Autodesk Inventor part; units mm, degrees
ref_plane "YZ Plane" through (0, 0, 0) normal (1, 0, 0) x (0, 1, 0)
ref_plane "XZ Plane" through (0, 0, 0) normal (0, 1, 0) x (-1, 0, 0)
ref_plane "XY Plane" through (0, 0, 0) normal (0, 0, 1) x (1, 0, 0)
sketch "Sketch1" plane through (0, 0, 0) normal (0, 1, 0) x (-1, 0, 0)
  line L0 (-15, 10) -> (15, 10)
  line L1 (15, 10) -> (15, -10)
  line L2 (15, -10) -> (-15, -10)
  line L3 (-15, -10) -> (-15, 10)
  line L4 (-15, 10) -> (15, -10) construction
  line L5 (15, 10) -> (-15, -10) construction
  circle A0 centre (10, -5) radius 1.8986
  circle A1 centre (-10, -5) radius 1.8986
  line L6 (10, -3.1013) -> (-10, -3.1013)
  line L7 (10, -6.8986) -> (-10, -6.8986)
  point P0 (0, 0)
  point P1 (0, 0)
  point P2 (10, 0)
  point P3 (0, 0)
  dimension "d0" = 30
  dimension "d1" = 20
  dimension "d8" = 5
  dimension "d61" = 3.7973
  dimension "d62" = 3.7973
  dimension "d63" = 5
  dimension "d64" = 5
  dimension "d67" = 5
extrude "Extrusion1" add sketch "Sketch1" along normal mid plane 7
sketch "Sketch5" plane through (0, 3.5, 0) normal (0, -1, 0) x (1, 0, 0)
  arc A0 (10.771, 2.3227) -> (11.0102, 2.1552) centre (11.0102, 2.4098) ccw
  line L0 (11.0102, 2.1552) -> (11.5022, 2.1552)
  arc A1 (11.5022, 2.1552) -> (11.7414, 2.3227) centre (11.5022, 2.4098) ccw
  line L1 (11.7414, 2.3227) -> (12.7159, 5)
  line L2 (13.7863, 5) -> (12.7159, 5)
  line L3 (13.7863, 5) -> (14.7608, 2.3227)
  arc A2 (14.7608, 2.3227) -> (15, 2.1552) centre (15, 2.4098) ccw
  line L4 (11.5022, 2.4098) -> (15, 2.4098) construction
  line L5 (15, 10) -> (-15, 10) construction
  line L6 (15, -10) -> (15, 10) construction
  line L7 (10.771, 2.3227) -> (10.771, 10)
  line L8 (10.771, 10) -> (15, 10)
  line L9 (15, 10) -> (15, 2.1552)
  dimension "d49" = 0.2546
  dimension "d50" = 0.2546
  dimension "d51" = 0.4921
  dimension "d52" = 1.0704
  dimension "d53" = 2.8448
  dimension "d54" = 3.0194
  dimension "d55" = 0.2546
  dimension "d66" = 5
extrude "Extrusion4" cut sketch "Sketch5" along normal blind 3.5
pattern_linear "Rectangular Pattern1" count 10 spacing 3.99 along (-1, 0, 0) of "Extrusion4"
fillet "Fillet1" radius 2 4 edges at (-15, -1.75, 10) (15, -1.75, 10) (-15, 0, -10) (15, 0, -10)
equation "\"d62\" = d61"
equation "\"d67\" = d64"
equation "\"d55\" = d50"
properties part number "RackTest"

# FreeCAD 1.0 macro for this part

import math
import FreeCAD as App
import Part
import Sketcher
from FreeCAD import Vector
Q = App.Units.Quantity


def edges_at(feature, points):
    """Names of the edges that pass closest to the given points."""
    edges = feature.Shape.Edges
    near = lambda p: min(range(len(edges)), key=lambda i: edges[i].distToShape(Part.Vertex(*p))[0])
    return sorted({f"Edge{near(p) + 1}" for p in points})


def add_polygon(sketch, points):
    """Adds a closed chain of lines whose ends are joined by coincident constraints."""
    first, n = sketch.GeometryCount, len(points)
    for a, b in zip(points, points[1:] + points[:1]):
        sketch.addGeometry(Part.LineSegment(App.Vector(*a, 0), App.Vector(*b, 0)), False)
    for i in range(n):
        sketch.addConstraint(Sketcher.Constraint("Coincident", first + i, 2, first + (i + 1) % n, 1))

doc = App.newDocument("Part")
body = doc.addObject("PartDesign::Body", "Body")

sketch1 = body.newObject("Sketcher::SketchObject", "Sketch")
sketch1.AttachmentSupport = (doc.getObject("XZ_Plane"), [""])
sketch1.MapMode = "FlatFace"
add_polygon(sketch1, [(-15, 10), (15, 10), (15, -10), (-15, -10)])
sketch1.addGeometry(Part.ArcOfCircle(Part.Circle(Vector(-10, -5, 0), Vector(0, 0, 1), 1.8986), math.radians(90), math.radians(270)), False)
sketch1.addGeometry(Part.LineSegment(Vector(-10, -6.8986, 0), Vector(10, -6.8986, 0)), False)
sketch1.addGeometry(Part.ArcOfCircle(Part.Circle(Vector(10, -5, 0), Vector(0, 0, 1), 1.8986), math.radians(-90), math.radians(90)), False)
sketch1.addGeometry(Part.LineSegment(Vector(10, -3.1013, 0), Vector(-10, -3.1013, 0)), False)
sketch1.addConstraint(Sketcher.Constraint("Tangent", 4, 2, 5, 1))
sketch1.addConstraint(Sketcher.Constraint("Tangent", 5, 2, 6, 1))
sketch1.addConstraint(Sketcher.Constraint("Tangent", 6, 2, 7, 1))
sketch1.addConstraint(Sketcher.Constraint("Tangent", 7, 2, 4, 1))
sketch1.addConstraint(Sketcher.Constraint("Horizontal", 0))
sketch1.addConstraint(Sketcher.Constraint("Vertical", 1))
sketch1.addConstraint(Sketcher.Constraint("Horizontal", 2))
sketch1.addConstraint(Sketcher.Constraint("Vertical", 3))
sketch1.addConstraint(Sketcher.Constraint("Horizontal", 5))
sketch1.addConstraint(Sketcher.Constraint("Horizontal", 7))
sketch1.addConstraint(Sketcher.Constraint("Symmetric", 0, 2, 2, 2, -1, 1))
sketch1.addConstraint(Sketcher.Constraint("Equal", 7, 1))
sketch1.addConstraint(Sketcher.Constraint("DistanceX", 0, 1, 0, 2, Q("30 mm")))
sketch1.addConstraint(Sketcher.Constraint("DistanceX", 5, 1, 5, 2, Q("20 mm")))
sketch1.addConstraint(Sketcher.Constraint("DistanceY", 4, 3, -1, 1, Q("5 mm")))
sketch1.addConstraint(Sketcher.Constraint("DistanceX", 6, 3, 0, 2, Q("5 mm")))
sketch1.addConstraint(Sketcher.Constraint("Radius", 4, Q("1.8986 mm")))
pad1 = body.newObject("PartDesign::Pad", "Pad")
pad1.Profile = sketch1
pad1.Length = 7
pad1.Midplane = True

sketch2 = body.newObject("Sketcher::SketchObject", "Sketch001")
sketch2.AttachmentSupport = (doc.getObject("XZ_Plane"), [""])
sketch2.MapMode = "FlatFace"
sketch2.AttachmentOffset = App.Placement(Vector(0, 0, -3.5), App.Rotation())
sketch2.addGeometry(Part.LineSegment(Vector(10.771, 10, 0), Vector(10.771, 2.3227, 0)), False)
sketch2.addGeometry(Part.ArcOfCircle(Part.Circle(Vector(11.0102, 2.4098, 0), Vector(0, 0, 1), 0.254564), math.radians(-159.991895), math.radians(-90)), False)
sketch2.addGeometry(Part.LineSegment(Vector(11.0102, 2.1552, 0), Vector(11.5022, 2.1552, 0)), False)
sketch2.addGeometry(Part.ArcOfCircle(Part.Circle(Vector(11.5022, 2.4098, 0), Vector(0, 0, 1), 0.2546), math.radians(-90), math.radians(-20.008105)), False)
sketch2.addGeometry(Part.LineSegment(Vector(11.7414, 2.3227, 0), Vector(12.7159, 5, 0)), False)
sketch2.addGeometry(Part.LineSegment(Vector(12.7159, 5, 0), Vector(13.7863, 5, 0)), False)
sketch2.addGeometry(Part.LineSegment(Vector(13.7863, 5, 0), Vector(14.7608, 2.3227, 0)), False)
sketch2.addGeometry(Part.ArcOfCircle(Part.Circle(Vector(15, 2.4098, 0), Vector(0, 0, 1), 0.254564), math.radians(-159.991895), math.radians(-90)), False)
sketch2.addGeometry(Part.LineSegment(Vector(15, 2.1552, 0), Vector(15, 10, 0)), False)
sketch2.addGeometry(Part.LineSegment(Vector(15, 10, 0), Vector(10.771, 10, 0)), False)
sketch2.addConstraint(Sketcher.Constraint("Coincident", 0, 2, 1, 1))
sketch2.addConstraint(Sketcher.Constraint("Tangent", 1, 2, 2, 1))
sketch2.addConstraint(Sketcher.Constraint("Tangent", 2, 2, 3, 1))
sketch2.addConstraint(Sketcher.Constraint("Tangent", 3, 2, 4, 1))
sketch2.addConstraint(Sketcher.Constraint("Coincident", 4, 2, 5, 1))
sketch2.addConstraint(Sketcher.Constraint("Coincident", 5, 2, 6, 1))
sketch2.addConstraint(Sketcher.Constraint("Tangent", 6, 2, 7, 1))
sketch2.addConstraint(Sketcher.Constraint("Coincident", 7, 2, 8, 1))
sketch2.addConstraint(Sketcher.Constraint("Coincident", 8, 2, 9, 1))
sketch2.addConstraint(Sketcher.Constraint("Coincident", 9, 2, 0, 1))
sketch2.addConstraint(Sketcher.Constraint("Vertical", 0))
sketch2.addConstraint(Sketcher.Constraint("Horizontal", 2))
sketch2.addConstraint(Sketcher.Constraint("Horizontal", 5))
sketch2.addConstraint(Sketcher.Constraint("Vertical", 8))
sketch2.addConstraint(Sketcher.Constraint("Horizontal", 9))
sketch2.addConstraint(Sketcher.Constraint("Equal", 1, 3))
sketch2.addConstraint(Sketcher.Constraint("Equal", 3, 7))
sketch2.addConstraint(Sketcher.Constraint("Horizontal", 3, 3, 7, 3))
sketch2.addConstraint(Sketcher.Constraint("Horizontal", 0, 2, 3, 2))
sketch2.addConstraint(Sketcher.Constraint("Horizontal", 3, 2, 6, 2))
sketch2.addConstraint(Sketcher.Constraint("DistanceY", -1, 1, 4, 2, Q("5 mm")))
sketch2.addConstraint(Sketcher.Constraint("DistanceY", 5, 2, 8, 2, Q("5 mm")))
sketch2.addConstraint(Sketcher.Constraint("Radius", 1, Q("0.2546 mm")))
sketch2.addConstraint(Sketcher.Constraint("DistanceX", 2, 1, 2, 2, Q("0.492 mm")))
sketch2.addConstraint(Sketcher.Constraint("Angle", 4, Q("69.9992 deg")))
sketch2.addConstraint(Sketcher.Constraint("DistanceX", 5, 1, 5, 2, Q("1.0704 mm")))
sketch2.addConstraint(Sketcher.Constraint("DistanceX", -1, 1, 7, 3, Q("15 mm")))
sketch2.addConstraint(Sketcher.Constraint("DistanceX", -1, 1, 7, 2, Q("15 mm")))
sketch2.addConstraint(Sketcher.Constraint("DistanceY", 2, 2, 4, 2, Q("2.8448 mm")))
pocket1 = body.newObject("PartDesign::Pocket", "Pocket")
pocket1.Profile = sketch2
pocket1.Length = 3.5
pocket1.Reversed = True
doc.recompute()

linearpattern = body.newObject("PartDesign::LinearPattern", "LinearPattern")
linearpattern.Originals = [pocket1]
linearpattern.Direction = (doc.getObject("X_Axis"), [""])
linearpattern.Mode = "offset"
linearpattern.Offset = 3.99
linearpattern.Occurrences = 10
linearpattern.Reversed = True
body.Tip = linearpattern
doc.recompute()

fillet = body.newObject("PartDesign::Fillet", "Fillet")
fillet.Base = (linearpattern, edges_at(linearpattern, [
    (-15, -1.75, 10),
    (15, -1.75, 10),
    (-15, 0, -10),
    (15, 0, -10),
]))
fillet.Radius = 2

doc.recompute()
